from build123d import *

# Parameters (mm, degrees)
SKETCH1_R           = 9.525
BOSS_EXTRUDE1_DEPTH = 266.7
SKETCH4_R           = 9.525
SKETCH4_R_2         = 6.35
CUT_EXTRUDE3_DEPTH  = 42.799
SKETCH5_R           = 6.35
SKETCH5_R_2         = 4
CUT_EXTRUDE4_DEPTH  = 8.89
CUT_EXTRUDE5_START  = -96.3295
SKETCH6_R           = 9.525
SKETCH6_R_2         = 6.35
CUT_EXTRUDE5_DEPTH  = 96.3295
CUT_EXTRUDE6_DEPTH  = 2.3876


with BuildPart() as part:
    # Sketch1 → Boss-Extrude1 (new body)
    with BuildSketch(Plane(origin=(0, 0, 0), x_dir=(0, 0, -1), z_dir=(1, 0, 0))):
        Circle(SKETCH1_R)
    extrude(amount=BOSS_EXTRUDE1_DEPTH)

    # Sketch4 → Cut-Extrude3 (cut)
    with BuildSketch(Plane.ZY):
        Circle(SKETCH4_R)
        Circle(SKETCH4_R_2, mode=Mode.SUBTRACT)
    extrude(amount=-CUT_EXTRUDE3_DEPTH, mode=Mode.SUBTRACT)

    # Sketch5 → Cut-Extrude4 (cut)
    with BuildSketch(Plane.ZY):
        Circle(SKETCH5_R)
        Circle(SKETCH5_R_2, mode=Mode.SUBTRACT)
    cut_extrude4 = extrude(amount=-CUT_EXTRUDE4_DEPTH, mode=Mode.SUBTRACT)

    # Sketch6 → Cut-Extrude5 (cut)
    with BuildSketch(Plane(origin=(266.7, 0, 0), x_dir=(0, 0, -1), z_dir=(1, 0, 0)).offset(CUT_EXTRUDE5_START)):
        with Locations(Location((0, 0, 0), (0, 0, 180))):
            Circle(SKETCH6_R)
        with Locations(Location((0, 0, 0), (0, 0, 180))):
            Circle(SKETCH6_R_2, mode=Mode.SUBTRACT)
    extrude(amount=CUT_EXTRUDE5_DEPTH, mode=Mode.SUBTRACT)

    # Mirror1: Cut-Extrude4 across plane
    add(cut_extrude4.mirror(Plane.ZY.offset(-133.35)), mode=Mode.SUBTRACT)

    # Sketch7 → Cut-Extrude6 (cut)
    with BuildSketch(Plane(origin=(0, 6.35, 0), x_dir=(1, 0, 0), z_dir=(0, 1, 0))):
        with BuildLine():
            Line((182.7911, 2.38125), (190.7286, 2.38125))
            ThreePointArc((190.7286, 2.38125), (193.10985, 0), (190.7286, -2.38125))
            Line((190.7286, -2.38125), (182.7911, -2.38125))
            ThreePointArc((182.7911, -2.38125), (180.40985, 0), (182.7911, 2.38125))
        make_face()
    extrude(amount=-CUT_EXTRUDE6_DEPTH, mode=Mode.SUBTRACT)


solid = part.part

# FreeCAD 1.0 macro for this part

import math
import FreeCAD as App
import Part
import Sketcher

V = App.Vector
Q = App.Units.Quantity

doc = App.newDocument("Part")
params = doc.addObject("Spreadsheet::Sheet", "Params")
for row, (alias, value) in enumerate([
    ("sketch1_diameter", "0.75 in"),
    ("pad1_length", "10.5 in"),
    ("sketch2_diameter", "0.5 in"),
    ("sketch2_diameter2", "0.75 in"),
    ("pocket1_length", "1.685 in"),
    ("sketch3_diameter", "0.5 in"),
    ("pocket2_length", "0.35 in"),
    ("sketch4_diameter", "0.5 in"),
    ("sketch4_diameter2", "0.75 in"),
    ("pocket3_length", "3.7925 in"),
    ("sketch5_radius", "0.09375 in"),
    ("sketch5_width", "0.3125 in"),
    ("pocket4_length", "0.094 in"),
], start=1):
    params.set(f"A{row}", alias)
    params.set(f"B{row}", "=" + value)
    params.setAlias(f"B{row}", alias)

body = doc.addObject("PartDesign::Body", "Body")

sketch1 = body.newObject("Sketcher::SketchObject", "Sketch")
sketch1.AttachmentSupport = (doc.getObject("YZ_Plane"), [""])
sketch1.MapMode = "FlatFace"
sketch1.addGeometry(Part.Circle(V(0, 0, 0), V(0, 0, 1), 10), False)
sketch1.addConstraint([
    Sketcher.Constraint("Coincident", 0, 3, -1, 1),
    Sketcher.Constraint("Diameter", 0, Q("0.75 in")),
])
sketch1.setExpression("Constraints[1]", "Params.sketch1_diameter")
pad1 = body.newObject("PartDesign::Pad", "Pad")
pad1.Profile = sketch1
pad1.setExpression("Length", "Params.pad1_length")

sketch2 = body.newObject("Sketcher::SketchObject", "Sketch001")
sketch2.AttachmentSupport = (doc.getObject("YZ_Plane"), [""])
sketch2.MapMode = "FlatFace"
sketch2.addGeometry([
    Part.Circle(V(0, 0, 0), V(0, 0, 1), 10),
    Part.Circle(V(0, 0, 0), V(0, 0, 1), 6),
], False)
sketch2.addConstraint([
    Sketcher.Constraint("Coincident", 0, 3, -1, 1),
    Sketcher.Constraint("Coincident", 1, 3, -1, 1),
    Sketcher.Constraint("Diameter", 1, Q("0.5 in")),
    Sketcher.Constraint("Diameter", 0, Q("0.75 in")),
])
sketch2.setExpression("Constraints[2]", "Params.sketch2_diameter")
sketch2.setExpression("Constraints[3]", "Params.sketch2_diameter2")
pocket1 = body.newObject("PartDesign::Pocket", "Pocket")
pocket1.Profile = sketch2
pocket1.setExpression("Length", "Params.pocket1_length")
pocket1.Reversed = True

sketch3 = body.newObject("Sketcher::SketchObject", "Sketch002")
sketch3.AttachmentSupport = (doc.getObject("YZ_Plane"), [""])
sketch3.MapMode = "FlatFace"
sketch3.addGeometry([
    Part.Circle(V(0, 0, 0), V(0, 0, 1), 6.3),
    Part.Circle(V(0, 0, 0), V(0, 0, 1), 4),
], False)
sketch3.addConstraint([
    Sketcher.Constraint("Coincident", 0, 3, -1, 1),
    Sketcher.Constraint("Coincident", 1, 3, -1, 1),
    Sketcher.Constraint("Diameter", 0, Q("0.5 in")),
    Sketcher.Constraint("Diameter", 1, Q("8 mm")),
])
sketch3.setExpression("Constraints[2]", "Params.sketch3_diameter")
pocket2 = body.newObject("PartDesign::Pocket", "Pocket001")
pocket2.Profile = sketch3
pocket2.setExpression("Length", "Params.pocket2_length")
pocket2.Reversed = True

sketch4 = body.newObject("Sketcher::SketchObject", "Sketch003")
sketch4.AttachmentSupport = (doc.getObject("YZ_Plane"), [""])
sketch4.MapMode = "FlatFace"
sketch4.AttachmentOffset = App.Placement(V(0, 0, 6.7075 * 25.4), App.Rotation())
sketch4.addGeometry([
    Part.Circle(V(0, 0, 0), V(0, 0, 1), 10),
    Part.Circle(V(0, 0, 0), V(0, 0, 1), 6),
], False)
sketch4.addConstraint([
    Sketcher.Constraint("Coincident", 0, 3, -1, 1),
    Sketcher.Constraint("Coincident", 1, 3, -1, 1),
    Sketcher.Constraint("Diameter", 1, Q("0.5 in")),
    Sketcher.Constraint("Diameter", 0, Q("0.75 in")),
])
sketch4.setExpression("Constraints[2]", "Params.sketch4_diameter")
sketch4.setExpression("Constraints[3]", "Params.sketch4_diameter2")
pocket3 = body.newObject("PartDesign::Pocket", "Pocket002")
pocket3.Profile = sketch4
pocket3.setExpression("Length", "Params.pocket3_length")
pocket3.Reversed = True
doc.recompute()

datumplane = body.newObject("PartDesign::Plane", "DatumPlane")
datumplane.AttachmentSupport = (doc.getObject("YZ_Plane"), [""])
datumplane.MapMode = "FlatFace"
datumplane.AttachmentOffset = App.Placement(V(0, 0, 5.25 * 25.4), App.Rotation())
mirrored = body.newObject("PartDesign::Mirrored", "Mirrored")
mirrored.Originals = [pocket2]
mirrored.MirrorPlane = (datumplane, [""])
body.Tip = mirrored

sketch5 = body.newObject("Sketcher::SketchObject", "Sketch004")
sketch5.AttachmentSupport = (doc.getObject("XZ_Plane"), [""])
sketch5.MapMode = "FlatFace"
sketch5.AttachmentOffset = App.Placement(V(0, 0, -0.25 * 25.4), App.Rotation())
sketch5.addGeometry([
    Part.LineSegment(V(190.7, -2.4, 0), V(182.8, -2.4, 0)),
    Part.ArcOfCircle(Part.Circle(V(182.8, 0, 0), V(0, 0, 1), 2.4), math.radians(90), math.radians(270)),
    Part.LineSegment(V(182.8, 2.4, 0), V(190.7, 2.4, 0)),
    Part.ArcOfCircle(Part.Circle(V(190.7, 0, 0), V(0, 0, 1), 2.4), math.radians(-90), math.radians(90)),
], False)
sketch5.addConstraint([
    Sketcher.Constraint("Tangent", 0, 2, 1, 2),
    Sketcher.Constraint("Tangent", 1, 1, 2, 1),
    Sketcher.Constraint("Tangent", 2, 2, 3, 2),
    Sketcher.Constraint("Tangent", 3, 1, 0, 1),
    Sketcher.Constraint("Horizontal", 0),
    Sketcher.Constraint("Horizontal", 2),
    Sketcher.Constraint("PointOnObject", 1, 3, -1),
    Sketcher.Constraint("Radius", 1, Q("0.09375 in")),
    Sketcher.Constraint("DistanceX", 0, 2, 0, 1, Q("0.3125 in")),
    Sketcher.Constraint("DistanceX", -1, 1, 3, 3, Q("7.509 in")),
])
sketch5.setExpression("Constraints[7]", "Params.sketch5_radius")
sketch5.setExpression("Constraints[8]", "Params.sketch5_width")
pocket4 = body.newObject("PartDesign::Pocket", "Pocket003")
pocket4.Profile = sketch5
pocket4.setExpression("Length", "Params.pocket4_length")
pocket4.Reversed = True

doc.recompute()
